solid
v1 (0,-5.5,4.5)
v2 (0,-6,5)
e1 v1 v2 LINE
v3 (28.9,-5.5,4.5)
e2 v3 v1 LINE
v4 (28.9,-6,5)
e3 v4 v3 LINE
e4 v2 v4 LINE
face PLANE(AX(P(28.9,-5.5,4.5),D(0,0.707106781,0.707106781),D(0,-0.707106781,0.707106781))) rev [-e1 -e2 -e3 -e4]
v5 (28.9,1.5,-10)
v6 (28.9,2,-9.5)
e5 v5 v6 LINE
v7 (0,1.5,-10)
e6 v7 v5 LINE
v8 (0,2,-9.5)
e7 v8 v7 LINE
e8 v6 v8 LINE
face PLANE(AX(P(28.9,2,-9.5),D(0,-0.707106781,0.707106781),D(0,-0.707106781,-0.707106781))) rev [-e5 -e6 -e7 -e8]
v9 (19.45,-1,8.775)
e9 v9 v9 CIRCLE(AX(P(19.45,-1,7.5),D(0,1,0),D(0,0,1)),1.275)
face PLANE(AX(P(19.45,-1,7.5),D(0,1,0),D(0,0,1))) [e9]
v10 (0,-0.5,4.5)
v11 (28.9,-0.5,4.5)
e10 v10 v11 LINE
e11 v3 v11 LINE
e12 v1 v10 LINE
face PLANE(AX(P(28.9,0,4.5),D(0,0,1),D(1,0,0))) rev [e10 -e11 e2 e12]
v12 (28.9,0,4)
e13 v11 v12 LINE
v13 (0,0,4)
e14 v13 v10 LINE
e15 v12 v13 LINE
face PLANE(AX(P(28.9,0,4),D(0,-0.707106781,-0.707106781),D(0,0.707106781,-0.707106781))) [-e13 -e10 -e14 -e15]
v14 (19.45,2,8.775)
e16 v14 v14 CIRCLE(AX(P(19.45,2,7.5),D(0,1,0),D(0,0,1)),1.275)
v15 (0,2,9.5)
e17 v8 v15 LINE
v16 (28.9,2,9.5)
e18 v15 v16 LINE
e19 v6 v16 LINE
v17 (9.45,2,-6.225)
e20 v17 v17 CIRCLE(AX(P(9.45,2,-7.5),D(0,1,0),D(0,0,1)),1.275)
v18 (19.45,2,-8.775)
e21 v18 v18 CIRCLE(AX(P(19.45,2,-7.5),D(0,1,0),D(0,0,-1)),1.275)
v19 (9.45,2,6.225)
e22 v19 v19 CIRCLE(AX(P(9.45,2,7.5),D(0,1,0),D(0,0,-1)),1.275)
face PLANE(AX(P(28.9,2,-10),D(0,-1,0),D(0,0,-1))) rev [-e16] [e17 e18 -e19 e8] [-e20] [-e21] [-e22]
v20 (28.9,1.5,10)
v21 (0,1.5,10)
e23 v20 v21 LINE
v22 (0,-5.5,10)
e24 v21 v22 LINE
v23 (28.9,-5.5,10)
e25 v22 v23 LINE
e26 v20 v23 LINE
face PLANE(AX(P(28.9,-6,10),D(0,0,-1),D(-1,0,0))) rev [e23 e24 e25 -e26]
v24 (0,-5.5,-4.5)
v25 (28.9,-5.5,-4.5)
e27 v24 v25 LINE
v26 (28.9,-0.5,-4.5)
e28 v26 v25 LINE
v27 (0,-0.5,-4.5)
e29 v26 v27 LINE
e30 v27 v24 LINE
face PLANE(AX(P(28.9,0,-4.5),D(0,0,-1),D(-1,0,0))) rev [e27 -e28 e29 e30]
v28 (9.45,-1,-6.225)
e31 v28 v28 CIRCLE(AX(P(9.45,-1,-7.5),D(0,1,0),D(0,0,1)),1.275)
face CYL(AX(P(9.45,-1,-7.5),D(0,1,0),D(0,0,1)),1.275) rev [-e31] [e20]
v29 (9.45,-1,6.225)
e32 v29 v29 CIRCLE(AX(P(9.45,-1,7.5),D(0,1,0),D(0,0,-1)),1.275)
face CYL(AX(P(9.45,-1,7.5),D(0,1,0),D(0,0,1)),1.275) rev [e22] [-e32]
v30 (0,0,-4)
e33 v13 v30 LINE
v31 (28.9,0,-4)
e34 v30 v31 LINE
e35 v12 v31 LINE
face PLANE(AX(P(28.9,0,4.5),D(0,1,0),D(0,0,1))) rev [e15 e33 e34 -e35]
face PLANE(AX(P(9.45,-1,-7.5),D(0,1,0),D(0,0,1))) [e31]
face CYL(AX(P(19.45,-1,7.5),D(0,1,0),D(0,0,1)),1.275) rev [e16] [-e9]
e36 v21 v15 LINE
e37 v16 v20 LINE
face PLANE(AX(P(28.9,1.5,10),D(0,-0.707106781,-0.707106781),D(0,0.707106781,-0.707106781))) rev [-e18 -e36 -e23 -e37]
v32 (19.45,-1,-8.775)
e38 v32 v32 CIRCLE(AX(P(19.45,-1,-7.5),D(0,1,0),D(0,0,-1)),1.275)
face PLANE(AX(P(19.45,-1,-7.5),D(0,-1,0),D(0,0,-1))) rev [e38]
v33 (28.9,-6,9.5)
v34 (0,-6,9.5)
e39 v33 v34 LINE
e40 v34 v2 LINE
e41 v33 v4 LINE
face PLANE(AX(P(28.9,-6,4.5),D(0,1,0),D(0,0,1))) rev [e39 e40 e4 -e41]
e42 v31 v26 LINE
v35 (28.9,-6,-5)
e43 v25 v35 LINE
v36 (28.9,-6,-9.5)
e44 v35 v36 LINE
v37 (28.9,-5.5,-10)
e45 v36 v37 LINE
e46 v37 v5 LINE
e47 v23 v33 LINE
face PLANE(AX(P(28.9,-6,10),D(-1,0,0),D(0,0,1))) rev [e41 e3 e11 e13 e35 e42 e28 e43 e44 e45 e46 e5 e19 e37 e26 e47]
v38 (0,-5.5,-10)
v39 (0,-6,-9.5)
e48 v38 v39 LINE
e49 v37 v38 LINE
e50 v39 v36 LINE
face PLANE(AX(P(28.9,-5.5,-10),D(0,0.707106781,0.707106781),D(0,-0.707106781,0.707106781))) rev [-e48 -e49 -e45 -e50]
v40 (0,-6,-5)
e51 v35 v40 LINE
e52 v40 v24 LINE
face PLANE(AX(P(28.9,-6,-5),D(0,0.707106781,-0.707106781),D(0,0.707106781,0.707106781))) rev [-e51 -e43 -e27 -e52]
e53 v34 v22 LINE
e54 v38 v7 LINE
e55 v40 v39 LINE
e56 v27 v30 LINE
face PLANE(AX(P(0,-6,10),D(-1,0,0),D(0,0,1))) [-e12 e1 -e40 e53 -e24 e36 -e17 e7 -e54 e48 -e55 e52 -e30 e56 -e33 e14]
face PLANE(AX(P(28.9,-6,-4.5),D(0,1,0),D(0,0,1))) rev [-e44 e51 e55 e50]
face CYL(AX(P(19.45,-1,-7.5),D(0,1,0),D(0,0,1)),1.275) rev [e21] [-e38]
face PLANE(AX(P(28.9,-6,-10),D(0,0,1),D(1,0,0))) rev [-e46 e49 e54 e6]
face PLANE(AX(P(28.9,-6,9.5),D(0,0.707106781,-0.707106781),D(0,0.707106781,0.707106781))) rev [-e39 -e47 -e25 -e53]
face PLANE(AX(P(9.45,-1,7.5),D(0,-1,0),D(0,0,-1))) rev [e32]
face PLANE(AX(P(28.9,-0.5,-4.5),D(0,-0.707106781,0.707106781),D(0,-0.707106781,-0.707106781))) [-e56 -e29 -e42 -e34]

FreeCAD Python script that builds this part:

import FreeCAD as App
import Part
import Sketcher
from FreeCAD import Vector
Q = App.Units.Quantity


def edges_at(feature, points):
    """Names of the edges that pass closest to the given points."""
    edges = feature.Shape.Edges
    near = lambda p: min(range(len(edges)), key=lambda i: edges[i].distToShape(Part.Vertex(*p))[0])
    return sorted({f"Edge{near(p) + 1}" for p in points})


def add_polygon(sketch, points):
    """Adds a closed chain of lines whose ends are joined by coincident constraints."""
    first, n = sketch.GeometryCount, len(points)
    for a, b in zip(points, points[1:] + points[:1]):
        sketch.addGeometry(Part.LineSegment(App.Vector(*a, 0), App.Vector(*b, 0)), False)
    for i in range(n):
        sketch.addConstraint(Sketcher.Constraint("Coincident", first + i, 2, first + (i + 1) % n, 1))

doc = App.newDocument("Part")
body = doc.addObject("PartDesign::Body", "Body")

sketch1 = doc.addObject("Sketcher::SketchObject", "Sketch")
body.addObject(sketch1)
sketch1.AttachmentSupport = (doc.YZ_Plane, [""])
sketch1.MapMode = "FlatFace"
add_polygon(sketch1, [(0, 4.5), (0, -4.5), (-6, -4.5), (-6, -10), (2, -10), (2, 10), (-6, 10), (-6, 4.5)])
sketch1.addConstraint([
    Sketcher.Constraint("Vertical", 0),
    Sketcher.Constraint("Horizontal", 1),
    Sketcher.Constraint("Vertical", 2),
    Sketcher.Constraint("Horizontal", 3),
    Sketcher.Constraint("Vertical", 4),
    Sketcher.Constraint("Horizontal", 5),
    Sketcher.Constraint("Vertical", 6),
    Sketcher.Constraint("Horizontal", 7),
    Sketcher.Constraint("Symmetric", 0, 2, 7, 2, -1, 1),
    Sketcher.Constraint("Symmetric", 2, 2, 5, 2, -1),
    Sketcher.Constraint("DistanceX", 1, 2, 1, 1, Q("6 mm")),
    Sketcher.Constraint("DistanceX", 3, 1, 3, 2, Q("8 mm")),
    Sketcher.Constraint("DistanceY", 0, 2, 0, 1, Q("9 mm")),
    Sketcher.Constraint("DistanceY", 4, 1, 4, 2, Q("20 mm")),
])
pad1 = doc.addObject("PartDesign::Pad", "Pad")
body.addObject(pad1)
pad1.Profile = sketch1
pad1.Length = 28.9
doc.recompute()

chamfer = doc.addObject("PartDesign::Chamfer", "Chamfer")
body.addObject(chamfer)
chamfer.Base = (pad1, edges_at(pad1, [
    (14.45, -6, 10),
    (14.45, 2, 10),
    (14.45, 2, -10),
    (14.45, -6, -10),
    (14.45, -6, -4.5),
    (14.45, 0, -4.5),
    (14.45, 0, 4.5),
    (14.45, -6, 4.5),
]))
chamfer.Size = 0.5

sketch2 = doc.addObject("Sketcher::SketchObject", "Sketch001")
body.addObject(sketch2)
sketch2.AttachmentSupport = (doc.XZ_Plane, [""])
sketch2.MapMode = "FlatFace"
sketch2.AttachmentOffset = App.Placement(Vector(0, 0, -2), App.Rotation())
sketch2.addGeometry([
    Part.Circle(Vector(9.45, -7.5, 0), Vector(0, 0, 1), 1.275),
    Part.Circle(Vector(19.45, -7.5, 0), Vector(0, 0, 1), 1.275),
    Part.Circle(Vector(19.45, 7.5, 0), Vector(0, 0, 1), 1.275),
    Part.Circle(Vector(9.45, 7.5, 0), Vector(0, 0, 1), 1.275),
], False)
sketch2.addConstraint([
    Sketcher.Constraint("Equal", 0, 1),
    Sketcher.Constraint("Equal", 1, 2),
    Sketcher.Constraint("Equal", 2, 3),
    Sketcher.Constraint("Symmetric", 1, 3, 2, 3, -1),
    Sketcher.Constraint("Symmetric", 0, 3, 3, 3, -1),
    Sketcher.Constraint("Horizontal", 0, 3, 1, 3),
    Sketcher.Constraint("Diameter", 0, Q("2.55 mm")),
    Sketcher.Constraint("DistanceX", 0, 3, 1, 3, Q("10 mm")),
    Sketcher.Constraint("DistanceY", 1, 3, 2, 3, Q("15 mm")),
    Sketcher.Constraint("DistanceX", -1, 1, 0, 3, Q("9.45 mm")),
])
pocket1 = doc.addObject("PartDesign::Pocket", "Pocket")
body.addObject(pocket1)
pocket1.Profile = sketch2
pocket1.Length = 3
pocket1.Reversed = True

doc.recompute()
